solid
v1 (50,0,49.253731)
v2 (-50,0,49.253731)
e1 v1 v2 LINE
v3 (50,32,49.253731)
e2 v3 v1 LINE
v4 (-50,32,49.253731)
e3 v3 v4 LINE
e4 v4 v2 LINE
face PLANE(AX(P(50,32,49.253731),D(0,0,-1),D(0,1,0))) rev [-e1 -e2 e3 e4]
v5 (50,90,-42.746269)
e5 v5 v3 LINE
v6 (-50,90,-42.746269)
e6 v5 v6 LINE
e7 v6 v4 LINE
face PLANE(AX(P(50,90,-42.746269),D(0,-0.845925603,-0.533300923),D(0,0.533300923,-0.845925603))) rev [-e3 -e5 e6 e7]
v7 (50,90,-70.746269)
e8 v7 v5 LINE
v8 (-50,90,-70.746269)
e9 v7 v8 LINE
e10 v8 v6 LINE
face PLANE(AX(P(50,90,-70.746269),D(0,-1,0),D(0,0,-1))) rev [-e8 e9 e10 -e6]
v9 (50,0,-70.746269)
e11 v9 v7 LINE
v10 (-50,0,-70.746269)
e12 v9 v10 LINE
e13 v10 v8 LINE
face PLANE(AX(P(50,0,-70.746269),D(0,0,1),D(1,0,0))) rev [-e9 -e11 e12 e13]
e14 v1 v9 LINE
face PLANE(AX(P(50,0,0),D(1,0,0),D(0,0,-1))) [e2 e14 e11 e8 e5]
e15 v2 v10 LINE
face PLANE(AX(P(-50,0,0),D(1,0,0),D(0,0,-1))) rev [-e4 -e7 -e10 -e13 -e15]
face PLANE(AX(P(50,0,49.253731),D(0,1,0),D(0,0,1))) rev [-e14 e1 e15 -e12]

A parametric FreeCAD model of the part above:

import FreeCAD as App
import Part
import Sketcher


def add_polygon(sketch, points):
    """Adds a closed chain of lines whose ends are joined by coincident constraints."""
    first, n = sketch.GeometryCount, len(points)
    for a, b in zip(points, points[1:] + points[:1]):
        sketch.addGeometry(Part.LineSegment(App.Vector(*a, 0), App.Vector(*b, 0)), False)
    for i in range(n):
        sketch.addConstraint(Sketcher.Constraint("Coincident", first + i, 2, first + (i + 1) % n, 1))

doc = App.newDocument("Part")
body = doc.addObject("PartDesign::Body", "Body")

sketch1 = body.newObject("Sketcher::SketchObject", "Sketch")
sketch1.AttachmentSupport = (doc.getObject("YZ_Plane"), [""])
sketch1.MapMode = "FlatFace"
add_polygon(sketch1, [(0, 49.253731), (0, -70.746269), (90, -70.746269), (90, -42.746269), (32, 49.253731)])
sketch1.addConstraint([
    Sketcher.Constraint("Vertical", 0),
    Sketcher.Constraint("Horizontal", 1),
    Sketcher.Constraint("Vertical", 2),
    Sketcher.Constraint("Horizontal", 4),
    Sketcher.Constraint("PointOnObject", 0, 2, -2),
    Sketcher.Constraint("DistanceX", 1, 1, 1, 2, 90.0),
    Sketcher.Constraint("DistanceX", 4, 2, 4, 1, 32.0),
    Sketcher.Constraint("DistanceY", 0, 2, 0, 1, 120.0),
    Sketcher.Constraint("DistanceY", 2, 1, 2, 2, 28.0),
    Sketcher.Constraint("DistanceY", 0, 2, -1, 1, 70.746269),
])
pad1 = body.newObject("PartDesign::Pad", "Pad")
pad1.Profile = sketch1
pad1.Length = 100
pad1.Midplane = True

doc.recompute()
